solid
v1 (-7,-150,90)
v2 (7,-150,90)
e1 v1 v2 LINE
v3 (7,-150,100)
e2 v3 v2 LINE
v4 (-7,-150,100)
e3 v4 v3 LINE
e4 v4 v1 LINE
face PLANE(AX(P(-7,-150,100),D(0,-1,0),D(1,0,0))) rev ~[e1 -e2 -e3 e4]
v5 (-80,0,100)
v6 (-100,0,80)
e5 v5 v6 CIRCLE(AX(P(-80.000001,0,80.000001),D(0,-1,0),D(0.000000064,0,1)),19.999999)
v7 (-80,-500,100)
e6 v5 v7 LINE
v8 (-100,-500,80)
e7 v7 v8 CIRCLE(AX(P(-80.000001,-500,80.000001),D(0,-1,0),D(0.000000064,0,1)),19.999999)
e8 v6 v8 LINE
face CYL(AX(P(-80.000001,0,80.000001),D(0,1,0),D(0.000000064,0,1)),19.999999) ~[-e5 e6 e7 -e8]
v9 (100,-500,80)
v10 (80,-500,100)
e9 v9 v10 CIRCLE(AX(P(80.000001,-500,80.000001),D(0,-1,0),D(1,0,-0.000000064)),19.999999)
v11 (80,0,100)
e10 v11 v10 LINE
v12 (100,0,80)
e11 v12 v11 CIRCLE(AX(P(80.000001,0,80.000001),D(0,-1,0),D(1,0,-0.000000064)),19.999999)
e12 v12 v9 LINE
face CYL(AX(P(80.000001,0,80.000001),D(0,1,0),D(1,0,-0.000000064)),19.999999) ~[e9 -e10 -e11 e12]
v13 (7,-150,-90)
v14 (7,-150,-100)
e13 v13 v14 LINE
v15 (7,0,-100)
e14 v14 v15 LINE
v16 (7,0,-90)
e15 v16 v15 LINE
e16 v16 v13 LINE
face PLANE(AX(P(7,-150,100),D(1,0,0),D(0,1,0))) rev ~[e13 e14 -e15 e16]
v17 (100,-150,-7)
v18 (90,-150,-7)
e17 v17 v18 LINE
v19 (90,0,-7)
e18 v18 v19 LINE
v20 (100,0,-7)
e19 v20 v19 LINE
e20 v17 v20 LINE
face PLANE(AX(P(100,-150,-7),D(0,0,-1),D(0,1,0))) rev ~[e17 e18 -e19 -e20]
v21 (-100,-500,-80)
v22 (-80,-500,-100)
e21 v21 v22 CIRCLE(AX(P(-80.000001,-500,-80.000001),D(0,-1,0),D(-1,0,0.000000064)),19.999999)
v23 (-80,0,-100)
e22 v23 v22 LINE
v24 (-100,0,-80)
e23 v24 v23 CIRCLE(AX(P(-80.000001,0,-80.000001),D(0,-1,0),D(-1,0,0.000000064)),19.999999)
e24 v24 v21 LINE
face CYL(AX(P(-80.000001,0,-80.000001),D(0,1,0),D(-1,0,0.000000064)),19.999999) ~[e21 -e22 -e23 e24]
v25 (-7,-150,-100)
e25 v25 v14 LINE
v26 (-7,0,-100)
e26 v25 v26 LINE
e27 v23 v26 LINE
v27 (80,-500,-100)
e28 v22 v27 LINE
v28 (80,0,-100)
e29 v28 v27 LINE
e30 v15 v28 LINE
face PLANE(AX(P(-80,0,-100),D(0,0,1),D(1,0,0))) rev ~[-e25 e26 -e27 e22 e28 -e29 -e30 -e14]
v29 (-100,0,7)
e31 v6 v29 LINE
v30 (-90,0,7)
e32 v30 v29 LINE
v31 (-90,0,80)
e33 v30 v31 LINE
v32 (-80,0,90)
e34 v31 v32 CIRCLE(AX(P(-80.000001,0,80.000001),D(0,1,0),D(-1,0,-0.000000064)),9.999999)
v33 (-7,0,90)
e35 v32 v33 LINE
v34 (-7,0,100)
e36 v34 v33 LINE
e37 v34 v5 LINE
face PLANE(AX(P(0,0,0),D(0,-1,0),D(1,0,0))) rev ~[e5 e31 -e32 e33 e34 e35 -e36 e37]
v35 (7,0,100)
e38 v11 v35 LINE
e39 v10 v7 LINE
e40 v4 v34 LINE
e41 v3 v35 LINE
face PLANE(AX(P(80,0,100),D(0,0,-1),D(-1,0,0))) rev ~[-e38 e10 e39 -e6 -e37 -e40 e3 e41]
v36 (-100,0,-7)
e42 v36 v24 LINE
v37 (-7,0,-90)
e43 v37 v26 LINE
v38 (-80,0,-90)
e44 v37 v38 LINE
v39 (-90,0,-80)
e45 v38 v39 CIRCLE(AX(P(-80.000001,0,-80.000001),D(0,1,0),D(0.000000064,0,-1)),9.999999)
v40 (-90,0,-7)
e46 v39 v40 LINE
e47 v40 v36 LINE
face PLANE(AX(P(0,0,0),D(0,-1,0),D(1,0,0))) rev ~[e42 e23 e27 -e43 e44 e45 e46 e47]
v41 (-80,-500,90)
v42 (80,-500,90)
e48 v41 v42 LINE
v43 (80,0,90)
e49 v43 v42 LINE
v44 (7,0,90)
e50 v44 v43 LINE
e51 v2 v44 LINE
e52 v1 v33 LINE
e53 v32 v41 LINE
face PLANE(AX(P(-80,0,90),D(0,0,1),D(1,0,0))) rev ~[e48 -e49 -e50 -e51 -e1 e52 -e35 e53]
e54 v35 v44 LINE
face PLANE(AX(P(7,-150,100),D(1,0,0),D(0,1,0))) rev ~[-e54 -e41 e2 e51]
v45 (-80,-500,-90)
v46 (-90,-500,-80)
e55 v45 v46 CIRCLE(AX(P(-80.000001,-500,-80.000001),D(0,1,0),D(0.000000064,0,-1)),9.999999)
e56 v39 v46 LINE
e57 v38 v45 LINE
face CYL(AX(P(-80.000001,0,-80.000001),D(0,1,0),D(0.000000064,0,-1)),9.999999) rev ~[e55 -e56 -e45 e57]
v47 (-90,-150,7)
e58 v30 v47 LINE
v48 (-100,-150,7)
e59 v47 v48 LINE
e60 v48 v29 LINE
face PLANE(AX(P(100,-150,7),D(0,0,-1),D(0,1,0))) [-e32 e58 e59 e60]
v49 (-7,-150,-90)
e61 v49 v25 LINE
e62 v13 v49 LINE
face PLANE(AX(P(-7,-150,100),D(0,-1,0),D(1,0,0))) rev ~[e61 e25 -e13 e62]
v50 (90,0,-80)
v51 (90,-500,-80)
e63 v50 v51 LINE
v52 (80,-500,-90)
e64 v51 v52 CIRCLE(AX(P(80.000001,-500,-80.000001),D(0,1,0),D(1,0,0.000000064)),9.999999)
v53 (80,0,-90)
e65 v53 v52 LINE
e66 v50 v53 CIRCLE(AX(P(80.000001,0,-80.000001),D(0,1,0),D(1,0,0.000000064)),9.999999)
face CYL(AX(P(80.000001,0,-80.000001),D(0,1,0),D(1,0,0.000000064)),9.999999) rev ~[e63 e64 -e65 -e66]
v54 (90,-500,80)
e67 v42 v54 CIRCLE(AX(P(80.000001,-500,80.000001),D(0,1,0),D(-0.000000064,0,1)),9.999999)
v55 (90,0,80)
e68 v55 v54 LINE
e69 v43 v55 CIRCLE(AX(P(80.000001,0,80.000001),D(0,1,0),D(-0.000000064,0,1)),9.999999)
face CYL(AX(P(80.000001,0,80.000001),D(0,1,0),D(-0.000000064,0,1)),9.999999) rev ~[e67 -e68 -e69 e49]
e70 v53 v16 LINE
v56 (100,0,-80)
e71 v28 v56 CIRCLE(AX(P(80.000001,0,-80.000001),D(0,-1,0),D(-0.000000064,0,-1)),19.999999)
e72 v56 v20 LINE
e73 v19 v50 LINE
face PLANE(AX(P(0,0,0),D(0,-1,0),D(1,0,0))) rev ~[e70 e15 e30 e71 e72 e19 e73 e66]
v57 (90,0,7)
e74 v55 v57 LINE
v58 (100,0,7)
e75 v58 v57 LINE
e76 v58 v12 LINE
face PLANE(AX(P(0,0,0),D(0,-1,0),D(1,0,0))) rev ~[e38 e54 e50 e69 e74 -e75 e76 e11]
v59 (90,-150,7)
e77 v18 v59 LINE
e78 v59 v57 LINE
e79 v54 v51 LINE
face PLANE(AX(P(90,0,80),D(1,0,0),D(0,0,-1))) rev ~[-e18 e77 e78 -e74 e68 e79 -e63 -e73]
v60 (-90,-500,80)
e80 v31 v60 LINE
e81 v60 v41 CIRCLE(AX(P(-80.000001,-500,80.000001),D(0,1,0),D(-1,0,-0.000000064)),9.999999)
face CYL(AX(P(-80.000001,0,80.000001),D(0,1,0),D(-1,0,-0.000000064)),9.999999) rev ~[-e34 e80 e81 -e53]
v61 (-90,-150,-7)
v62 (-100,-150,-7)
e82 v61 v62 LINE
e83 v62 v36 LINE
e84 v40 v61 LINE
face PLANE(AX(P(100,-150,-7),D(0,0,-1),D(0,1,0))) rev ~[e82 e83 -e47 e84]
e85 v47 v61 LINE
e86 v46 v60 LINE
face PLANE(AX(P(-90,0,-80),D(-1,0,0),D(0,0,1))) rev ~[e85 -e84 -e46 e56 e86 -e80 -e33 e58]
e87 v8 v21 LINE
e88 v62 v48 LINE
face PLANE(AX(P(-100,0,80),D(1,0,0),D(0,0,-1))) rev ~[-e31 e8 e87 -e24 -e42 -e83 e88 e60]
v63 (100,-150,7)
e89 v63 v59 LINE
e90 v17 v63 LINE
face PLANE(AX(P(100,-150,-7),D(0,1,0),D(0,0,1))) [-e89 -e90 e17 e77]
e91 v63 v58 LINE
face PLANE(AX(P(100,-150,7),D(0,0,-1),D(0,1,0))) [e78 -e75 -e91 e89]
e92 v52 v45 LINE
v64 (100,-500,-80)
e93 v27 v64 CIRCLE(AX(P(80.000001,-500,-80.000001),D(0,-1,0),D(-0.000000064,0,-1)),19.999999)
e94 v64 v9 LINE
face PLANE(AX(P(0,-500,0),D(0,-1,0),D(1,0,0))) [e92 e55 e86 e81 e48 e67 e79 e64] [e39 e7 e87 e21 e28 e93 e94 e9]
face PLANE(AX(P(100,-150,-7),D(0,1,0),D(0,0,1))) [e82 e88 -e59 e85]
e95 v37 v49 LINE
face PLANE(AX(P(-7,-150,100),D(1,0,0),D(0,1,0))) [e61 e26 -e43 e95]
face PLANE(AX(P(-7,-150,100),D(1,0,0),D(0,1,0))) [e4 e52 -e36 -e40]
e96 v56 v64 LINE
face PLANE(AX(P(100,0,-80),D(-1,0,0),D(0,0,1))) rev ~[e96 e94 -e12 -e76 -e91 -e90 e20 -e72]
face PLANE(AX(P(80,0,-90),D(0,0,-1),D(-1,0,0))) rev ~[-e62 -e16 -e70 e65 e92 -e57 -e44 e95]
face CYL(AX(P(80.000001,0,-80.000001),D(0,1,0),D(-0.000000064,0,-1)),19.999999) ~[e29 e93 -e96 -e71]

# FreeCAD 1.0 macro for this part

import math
import FreeCAD as App
import Part
import Sketcher
from FreeCAD import Vector

doc = App.newDocument("Part")
params = doc.addObject("Spreadsheet::Sheet", "Params")
for row, (alias, value) in enumerate([
    ("sketch1_radius", "19.999999 mm"),
    ("sketch1_radius2", "9.999999 mm"),
    ("sketch1_width", "160 mm"),
    ("pad1_length", "500 mm"),
    ("sketch2_width", "14 mm"),
    ("sketch2_height", "150 mm"),
    ("sketch3_width", "150 mm"),
    ("sketch3_height", "14 mm"),
], start=1):
    params.set(f"A{row}", alias)
    params.set(f"B{row}", "=" + value)
    params.setAlias(f"B{row}", alias)

body = doc.addObject("PartDesign::Body", "Body")

sketch1 = body.newObject("Sketcher::SketchObject", "Sketch")
sketch1.AttachmentSupport = (doc.getObject("XZ_Plane"), [""])
sketch1.MapMode = "FlatFace"
sketch1.addGeometry([
    Part.ArcOfCircle(Part.Circle(Vector(80.000001, 80.000001, 0), Vector(0, 0, 1), 19.999999), math.radians(-0.000004), math.radians(90.000004)),
    Part.LineSegment(Vector(80, 100, 0), Vector(-80, 100, 0)),
    Part.ArcOfCircle(Part.Circle(Vector(-80.000001, 80.000001, 0), Vector(0, 0, 1), 19.999999), math.radians(89.999996), math.radians(180.000004)),
    Part.LineSegment(Vector(-100, 80, 0), Vector(-100, -80, 0)),
    Part.ArcOfCircle(Part.Circle(Vector(-80.000001, -80.000001, 0), Vector(0, 0, 1), 19.999999), math.radians(179.999996), math.radians(270.000004)),
    Part.LineSegment(Vector(-80, -100, 0), Vector(80, -100, 0)),
    Part.ArcOfCircle(Part.Circle(Vector(80.000001, -80.000001, 0), Vector(0, 0, 1), 19.999999), math.radians(-90.000004), math.radians(0.000004)),
    Part.LineSegment(Vector(100, -80, 0), Vector(100, 80, 0)),
    Part.ArcOfCircle(Part.Circle(Vector(-80.000001, 80.000001, 0), Vector(0, 0, 1), 9.999999), math.radians(89.999996), math.radians(180.000004)),
    Part.LineSegment(Vector(-80, 90, 0), Vector(80, 90, 0)),
    Part.ArcOfCircle(Part.Circle(Vector(80.000001, 80.000001, 0), Vector(0, 0, 1), 9.999999), math.radians(-0.000004), math.radians(90.000004)),
    Part.LineSegment(Vector(90, 80, 0), Vector(90, -80, 0)),
    Part.ArcOfCircle(Part.Circle(Vector(80.000001, -80.000001, 0), Vector(0, 0, 1), 9.999999), math.radians(-90.000004), math.radians(0.000004)),
    Part.LineSegment(Vector(80, -90, 0), Vector(-80, -90, 0)),
    Part.ArcOfCircle(Part.Circle(Vector(-80.000001, -80.000001, 0), Vector(0, 0, 1), 9.999999), math.radians(179.999996), math.radians(270.000004)),
    Part.LineSegment(Vector(-90, -80, 0), Vector(-90, 80, 0)),
], False)
sketch1.addConstraint([
    Sketcher.Constraint("Tangent", 0, 2, 1, 1),
    Sketcher.Constraint("Tangent", 1, 2, 2, 1),
    Sketcher.Constraint("Tangent", 2, 2, 3, 1),
    Sketcher.Constraint("Tangent", 3, 2, 4, 1),
    Sketcher.Constraint("Tangent", 4, 2, 5, 1),
    Sketcher.Constraint("Tangent", 5, 2, 6, 1),
    Sketcher.Constraint("Tangent", 6, 2, 7, 1),
    Sketcher.Constraint("Tangent", 7, 2, 0, 1),
    Sketcher.Constraint("Tangent", 8, 1, 9, 1),
    Sketcher.Constraint("Tangent", 9, 2, 10, 2),
    Sketcher.Constraint("Tangent", 10, 1, 11, 1),
    Sketcher.Constraint("Tangent", 11, 2, 12, 2),
    Sketcher.Constraint("Tangent", 12, 1, 13, 1),
    Sketcher.Constraint("Tangent", 13, 2, 14, 2),
    Sketcher.Constraint("Tangent", 14, 1, 15, 1),
    Sketcher.Constraint("Tangent", 15, 2, 8, 2),
    Sketcher.Constraint("Horizontal", 1),
    Sketcher.Constraint("Vertical", 3),
    Sketcher.Constraint("Horizontal", 5),
    Sketcher.Constraint("Vertical", 7),
    Sketcher.Constraint("Horizontal", 9),
    Sketcher.Constraint("Vertical", 11),
    Sketcher.Constraint("Horizontal", 13),
    Sketcher.Constraint("Vertical", 15),
    Sketcher.Constraint("Coincident", 8, 3, 2, 3),
    Sketcher.Constraint("Coincident", 10, 3, 0, 3),
    Sketcher.Constraint("Coincident", 12, 3, 6, 3),
    Sketcher.Constraint("Equal", 0, 2),
    Sketcher.Constraint("Equal", 2, 4),
    Sketcher.Constraint("Equal", 4, 6),
    Sketcher.Constraint("Equal", 12, 14),
    Sketcher.Constraint("Symmetric", 0, 3, 4, 3, -1, 1),
    Sketcher.Constraint("Equal", 13, 3),
    Sketcher.Constraint("Radius", 0, 19.999999),
    Sketcher.Constraint("Radius", 8, 9.999999),
    Sketcher.Constraint("DistanceX", 1, 2, 1, 1, 160.0),
])
sketch1.setExpression("Constraints[33]", "Params.sketch1_radius")
sketch1.setExpression("Constraints[34]", "Params.sketch1_radius2")
sketch1.setExpression("Constraints[35]", "Params.sketch1_width")
pad1 = body.newObject("PartDesign::Pad", "Pad")
pad1.Profile = sketch1
pad1.setExpression("Length", "Params.pad1_length")

sketch2 = body.newObject("Sketcher::SketchObject", "Sketch001")
sketch2.AttachmentSupport = (doc.getObject("XY_Plane"), [""])
sketch2.MapMode = "FlatFace"
sketch2.AttachmentOffset = App.Placement(Vector(0, 0, 100), App.Rotation())
sketch2.addGeometry([
    Part.LineSegment(Vector(-7, 0, 0), Vector(-7, -150, 0)),
    Part.LineSegment(Vector(-7, -150, 0), Vector(7, -150, 0)),
    Part.LineSegment(Vector(7, -150, 0), Vector(7, 0, 0)),
    Part.LineSegment(Vector(7, 0, 0), Vector(-7, 0, 0)),
], False)
sketch2.addConstraint([
    Sketcher.Constraint("Coincident", 0, 2, 1, 1),
    Sketcher.Constraint("Coincident", 1, 2, 2, 1),
    Sketcher.Constraint("Coincident", 2, 2, 3, 1),
    Sketcher.Constraint("Coincident", 3, 2, 0, 1),
    Sketcher.Constraint("Vertical", 0),
    Sketcher.Constraint("Horizontal", 1),
    Sketcher.Constraint("Vertical", 2),
    Sketcher.Constraint("Horizontal", 3),
    Sketcher.Constraint("Symmetric", 2, 2, 3, 2, -1, 1),
    Sketcher.Constraint("DistanceX", 1, 1, 1, 2, 14.0),
    Sketcher.Constraint("DistanceY", 0, 2, 0, 1, 150.0),
])
sketch2.setExpression("Constraints[9]", "Params.sketch2_width")
sketch2.setExpression("Constraints[10]", "Params.sketch2_height")
pocket1 = body.newObject("PartDesign::Pocket", "Pocket")
pocket1.Profile = sketch2
pocket1.Type = "ThroughAll"

sketch3 = body.newObject("Sketcher::SketchObject", "Sketch002")
sketch3.AttachmentSupport = (doc.getObject("YZ_Plane"), [""])
sketch3.MapMode = "FlatFace"
sketch3.AttachmentOffset = App.Placement(Vector(0, 0, 100), App.Rotation())
sketch3.addGeometry([
    Part.LineSegment(Vector(-150, 7, 0), Vector(-150, -7, 0)),
    Part.LineSegment(Vector(-150, -7, 0), Vector(0, -7, 0)),
    Part.LineSegment(Vector(0, -7, 0), Vector(0, 7, 0)),
    Part.LineSegment(Vector(0, 7, 0), Vector(-150, 7, 0)),
], False)
sketch3.addConstraint([
    Sketcher.Constraint("Coincident", 0, 2, 1, 1),
    Sketcher.Constraint("Coincident", 1, 2, 2, 1),
    Sketcher.Constraint("Coincident", 2, 2, 3, 1),
    Sketcher.Constraint("Coincident", 3, 2, 0, 1),
    Sketcher.Constraint("Vertical", 0),
    Sketcher.Constraint("Horizontal", 1),
    Sketcher.Constraint("Vertical", 2),
    Sketcher.Constraint("Horizontal", 3),
    Sketcher.Constraint("Symmetric", 1, 2, 2, 2, -1, 1),
    Sketcher.Constraint("DistanceX", 1, 1, 1, 2, 150.0),
    Sketcher.Constraint("DistanceY", 0, 2, 0, 1, 14.0),
])
sketch3.setExpression("Constraints[9]", "Params.sketch3_width")
sketch3.setExpression("Constraints[10]", "Params.sketch3_height")
pocket2 = body.newObject("PartDesign::Pocket", "Pocket001")
pocket2.Profile = sketch3
pocket2.Type = "ThroughAll"

doc.recompute()
